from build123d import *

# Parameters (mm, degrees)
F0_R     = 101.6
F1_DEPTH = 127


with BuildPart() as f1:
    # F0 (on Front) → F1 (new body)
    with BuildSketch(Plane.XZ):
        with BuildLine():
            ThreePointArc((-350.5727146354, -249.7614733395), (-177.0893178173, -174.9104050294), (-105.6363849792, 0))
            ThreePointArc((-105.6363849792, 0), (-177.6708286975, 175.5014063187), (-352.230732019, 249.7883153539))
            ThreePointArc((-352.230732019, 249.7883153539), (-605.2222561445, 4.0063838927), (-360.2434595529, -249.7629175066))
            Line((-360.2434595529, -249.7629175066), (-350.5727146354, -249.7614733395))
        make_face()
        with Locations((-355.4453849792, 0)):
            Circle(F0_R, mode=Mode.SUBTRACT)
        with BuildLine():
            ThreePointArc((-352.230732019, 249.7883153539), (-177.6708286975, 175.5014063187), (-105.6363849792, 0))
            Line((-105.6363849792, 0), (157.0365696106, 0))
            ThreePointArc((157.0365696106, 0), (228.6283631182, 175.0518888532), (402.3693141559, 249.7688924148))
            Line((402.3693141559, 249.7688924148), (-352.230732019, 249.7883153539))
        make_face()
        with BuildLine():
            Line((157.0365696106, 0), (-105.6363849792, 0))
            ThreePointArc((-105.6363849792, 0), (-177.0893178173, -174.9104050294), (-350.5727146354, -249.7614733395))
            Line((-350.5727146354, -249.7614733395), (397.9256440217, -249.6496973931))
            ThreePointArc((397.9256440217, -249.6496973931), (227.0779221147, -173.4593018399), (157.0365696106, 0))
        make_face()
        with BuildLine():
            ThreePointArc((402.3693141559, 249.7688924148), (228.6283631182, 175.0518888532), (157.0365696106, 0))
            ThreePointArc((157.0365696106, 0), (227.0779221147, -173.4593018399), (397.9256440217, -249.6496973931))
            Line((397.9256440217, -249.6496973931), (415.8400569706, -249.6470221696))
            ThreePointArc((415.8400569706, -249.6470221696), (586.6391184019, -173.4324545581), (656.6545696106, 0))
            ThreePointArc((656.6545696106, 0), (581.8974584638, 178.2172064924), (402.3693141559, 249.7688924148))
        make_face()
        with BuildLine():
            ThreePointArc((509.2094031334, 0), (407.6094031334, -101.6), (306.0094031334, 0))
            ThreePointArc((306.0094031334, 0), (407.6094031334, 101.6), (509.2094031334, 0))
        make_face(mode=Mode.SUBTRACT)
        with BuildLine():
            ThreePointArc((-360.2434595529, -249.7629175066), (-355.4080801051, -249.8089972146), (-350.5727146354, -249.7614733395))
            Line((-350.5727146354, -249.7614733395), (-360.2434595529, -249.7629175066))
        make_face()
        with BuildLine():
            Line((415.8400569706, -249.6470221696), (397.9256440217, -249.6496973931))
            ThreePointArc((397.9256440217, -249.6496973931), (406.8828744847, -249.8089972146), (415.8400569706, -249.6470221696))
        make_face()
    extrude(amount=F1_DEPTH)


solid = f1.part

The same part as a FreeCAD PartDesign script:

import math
import FreeCAD as App
import Part
import Sketcher
Q = App.Units.Quantity

doc = App.newDocument("Part")
body = doc.addObject("PartDesign::Body", "Body")

# Sketch on XZ plane
sketch1 = body.newObject("Sketcher::SketchObject", "Sketch")
sketch1.AttachmentSupport = (doc.getObject("XZ_Plane"), [""])
sketch1.MapMode = "FlatFace"
sketch1.addGeometry(Part.LineSegment(App.Vector(402, 250, 0), App.Vector(-352, 250, 0)), False)
sketch1.addGeometry(Part.ArcOfCircle(Part.Circle(App.Vector(-355, 0, 0), App.Vector(0, 0, 1), 250), math.radians(89), math.radians(271)), False)
sketch1.addGeometry(Part.LineSegment(App.Vector(-351, -250, 0), App.Vector(398, -250, 0)), False)
sketch1.addGeometry(Part.ArcOfCircle(Part.Circle(App.Vector(407, 0, 0), App.Vector(0, 0, 1), 250), math.radians(-92.05), math.radians(-87.94)), False)
sketch1.addGeometry(Part.ArcOfCircle(Part.Circle(App.Vector(407, 0, 0), App.Vector(0, 0, 1), 250), math.radians(-88), math.radians(91)), False)
sketch1.addGeometry(Part.Circle(App.Vector(-355, 0, 0), App.Vector(0, 0, 1), 102), False)
sketch1.addGeometry(Part.Circle(App.Vector(408, 0, 0), App.Vector(0, 0, 1), 102), False)
sketch1.addConstraint(Sketcher.Constraint("Coincident", 0, 2, 1, 1))
sketch1.addConstraint(Sketcher.Constraint("Coincident", 1, 2, 2, 1))
sketch1.addConstraint(Sketcher.Constraint("Coincident", 2, 2, 3, 1))
sketch1.addConstraint(Sketcher.Constraint("Tangent", 3, 2, 4, 1))
sketch1.addConstraint(Sketcher.Constraint("Coincident", 4, 2, 0, 1))
sketch1.addConstraint(Sketcher.Constraint("Coincident", 5, 3, 1, 3))
sketch1.addConstraint(Sketcher.Constraint("Equal", 1, 3))
sketch1.addConstraint(Sketcher.Constraint("Equal", 3, 4))
sketch1.addConstraint(Sketcher.Constraint("Equal", 5, 6))
sketch1.addConstraint(Sketcher.Constraint("PointOnObject", 1, 3, -1))
sketch1.addConstraint(Sketcher.Constraint("PointOnObject", 3, 3, -1))
sketch1.addConstraint(Sketcher.Constraint("PointOnObject", 6, 3, -1))
sketch1.addConstraint(Sketcher.Constraint("Diameter", 5, Q("8 in")))
sketch1.addConstraint(Sketcher.Constraint("Radius", 1, Q("9.835 in")))
sketch1.addConstraint(Sketcher.Constraint("DistanceX", 0, 2, 4, 3, Q("759.076302 mm")))
sketch1.addConstraint(Sketcher.Constraint("DistanceX", -1, 1, 3, 3, Q("406.84557 mm")))
sketch1.addConstraint(Sketcher.Constraint("DistanceX", 1, 3, 6, 3, Q("763.054788 mm")))
sketch1.addConstraint(Sketcher.Constraint("DistanceX", 1, 3, 1, 2, Q("4.87267 mm")))
sketch1.addConstraint(Sketcher.Constraint("DistanceX", 2, 2, 6, 3, Q("9.683759 mm")))
sketch1.addConstraint(Sketcher.Constraint("DistanceX", 1, 2, 3, 2, Q("766.412772 mm")))
sketch1.addConstraint(Sketcher.Constraint("DistanceX", 4, 2, 6, 3, Q("5.240089 mm")))
sketch1.addConstraint(Sketcher.Constraint("DistanceY", 2, 2, 4, 2, Q("499.41859 mm")))
pad1 = body.newObject("PartDesign::Pad", "Pad")
pad1.Profile = sketch1
pad1.Length = Q("5 in")

doc.recompute()
